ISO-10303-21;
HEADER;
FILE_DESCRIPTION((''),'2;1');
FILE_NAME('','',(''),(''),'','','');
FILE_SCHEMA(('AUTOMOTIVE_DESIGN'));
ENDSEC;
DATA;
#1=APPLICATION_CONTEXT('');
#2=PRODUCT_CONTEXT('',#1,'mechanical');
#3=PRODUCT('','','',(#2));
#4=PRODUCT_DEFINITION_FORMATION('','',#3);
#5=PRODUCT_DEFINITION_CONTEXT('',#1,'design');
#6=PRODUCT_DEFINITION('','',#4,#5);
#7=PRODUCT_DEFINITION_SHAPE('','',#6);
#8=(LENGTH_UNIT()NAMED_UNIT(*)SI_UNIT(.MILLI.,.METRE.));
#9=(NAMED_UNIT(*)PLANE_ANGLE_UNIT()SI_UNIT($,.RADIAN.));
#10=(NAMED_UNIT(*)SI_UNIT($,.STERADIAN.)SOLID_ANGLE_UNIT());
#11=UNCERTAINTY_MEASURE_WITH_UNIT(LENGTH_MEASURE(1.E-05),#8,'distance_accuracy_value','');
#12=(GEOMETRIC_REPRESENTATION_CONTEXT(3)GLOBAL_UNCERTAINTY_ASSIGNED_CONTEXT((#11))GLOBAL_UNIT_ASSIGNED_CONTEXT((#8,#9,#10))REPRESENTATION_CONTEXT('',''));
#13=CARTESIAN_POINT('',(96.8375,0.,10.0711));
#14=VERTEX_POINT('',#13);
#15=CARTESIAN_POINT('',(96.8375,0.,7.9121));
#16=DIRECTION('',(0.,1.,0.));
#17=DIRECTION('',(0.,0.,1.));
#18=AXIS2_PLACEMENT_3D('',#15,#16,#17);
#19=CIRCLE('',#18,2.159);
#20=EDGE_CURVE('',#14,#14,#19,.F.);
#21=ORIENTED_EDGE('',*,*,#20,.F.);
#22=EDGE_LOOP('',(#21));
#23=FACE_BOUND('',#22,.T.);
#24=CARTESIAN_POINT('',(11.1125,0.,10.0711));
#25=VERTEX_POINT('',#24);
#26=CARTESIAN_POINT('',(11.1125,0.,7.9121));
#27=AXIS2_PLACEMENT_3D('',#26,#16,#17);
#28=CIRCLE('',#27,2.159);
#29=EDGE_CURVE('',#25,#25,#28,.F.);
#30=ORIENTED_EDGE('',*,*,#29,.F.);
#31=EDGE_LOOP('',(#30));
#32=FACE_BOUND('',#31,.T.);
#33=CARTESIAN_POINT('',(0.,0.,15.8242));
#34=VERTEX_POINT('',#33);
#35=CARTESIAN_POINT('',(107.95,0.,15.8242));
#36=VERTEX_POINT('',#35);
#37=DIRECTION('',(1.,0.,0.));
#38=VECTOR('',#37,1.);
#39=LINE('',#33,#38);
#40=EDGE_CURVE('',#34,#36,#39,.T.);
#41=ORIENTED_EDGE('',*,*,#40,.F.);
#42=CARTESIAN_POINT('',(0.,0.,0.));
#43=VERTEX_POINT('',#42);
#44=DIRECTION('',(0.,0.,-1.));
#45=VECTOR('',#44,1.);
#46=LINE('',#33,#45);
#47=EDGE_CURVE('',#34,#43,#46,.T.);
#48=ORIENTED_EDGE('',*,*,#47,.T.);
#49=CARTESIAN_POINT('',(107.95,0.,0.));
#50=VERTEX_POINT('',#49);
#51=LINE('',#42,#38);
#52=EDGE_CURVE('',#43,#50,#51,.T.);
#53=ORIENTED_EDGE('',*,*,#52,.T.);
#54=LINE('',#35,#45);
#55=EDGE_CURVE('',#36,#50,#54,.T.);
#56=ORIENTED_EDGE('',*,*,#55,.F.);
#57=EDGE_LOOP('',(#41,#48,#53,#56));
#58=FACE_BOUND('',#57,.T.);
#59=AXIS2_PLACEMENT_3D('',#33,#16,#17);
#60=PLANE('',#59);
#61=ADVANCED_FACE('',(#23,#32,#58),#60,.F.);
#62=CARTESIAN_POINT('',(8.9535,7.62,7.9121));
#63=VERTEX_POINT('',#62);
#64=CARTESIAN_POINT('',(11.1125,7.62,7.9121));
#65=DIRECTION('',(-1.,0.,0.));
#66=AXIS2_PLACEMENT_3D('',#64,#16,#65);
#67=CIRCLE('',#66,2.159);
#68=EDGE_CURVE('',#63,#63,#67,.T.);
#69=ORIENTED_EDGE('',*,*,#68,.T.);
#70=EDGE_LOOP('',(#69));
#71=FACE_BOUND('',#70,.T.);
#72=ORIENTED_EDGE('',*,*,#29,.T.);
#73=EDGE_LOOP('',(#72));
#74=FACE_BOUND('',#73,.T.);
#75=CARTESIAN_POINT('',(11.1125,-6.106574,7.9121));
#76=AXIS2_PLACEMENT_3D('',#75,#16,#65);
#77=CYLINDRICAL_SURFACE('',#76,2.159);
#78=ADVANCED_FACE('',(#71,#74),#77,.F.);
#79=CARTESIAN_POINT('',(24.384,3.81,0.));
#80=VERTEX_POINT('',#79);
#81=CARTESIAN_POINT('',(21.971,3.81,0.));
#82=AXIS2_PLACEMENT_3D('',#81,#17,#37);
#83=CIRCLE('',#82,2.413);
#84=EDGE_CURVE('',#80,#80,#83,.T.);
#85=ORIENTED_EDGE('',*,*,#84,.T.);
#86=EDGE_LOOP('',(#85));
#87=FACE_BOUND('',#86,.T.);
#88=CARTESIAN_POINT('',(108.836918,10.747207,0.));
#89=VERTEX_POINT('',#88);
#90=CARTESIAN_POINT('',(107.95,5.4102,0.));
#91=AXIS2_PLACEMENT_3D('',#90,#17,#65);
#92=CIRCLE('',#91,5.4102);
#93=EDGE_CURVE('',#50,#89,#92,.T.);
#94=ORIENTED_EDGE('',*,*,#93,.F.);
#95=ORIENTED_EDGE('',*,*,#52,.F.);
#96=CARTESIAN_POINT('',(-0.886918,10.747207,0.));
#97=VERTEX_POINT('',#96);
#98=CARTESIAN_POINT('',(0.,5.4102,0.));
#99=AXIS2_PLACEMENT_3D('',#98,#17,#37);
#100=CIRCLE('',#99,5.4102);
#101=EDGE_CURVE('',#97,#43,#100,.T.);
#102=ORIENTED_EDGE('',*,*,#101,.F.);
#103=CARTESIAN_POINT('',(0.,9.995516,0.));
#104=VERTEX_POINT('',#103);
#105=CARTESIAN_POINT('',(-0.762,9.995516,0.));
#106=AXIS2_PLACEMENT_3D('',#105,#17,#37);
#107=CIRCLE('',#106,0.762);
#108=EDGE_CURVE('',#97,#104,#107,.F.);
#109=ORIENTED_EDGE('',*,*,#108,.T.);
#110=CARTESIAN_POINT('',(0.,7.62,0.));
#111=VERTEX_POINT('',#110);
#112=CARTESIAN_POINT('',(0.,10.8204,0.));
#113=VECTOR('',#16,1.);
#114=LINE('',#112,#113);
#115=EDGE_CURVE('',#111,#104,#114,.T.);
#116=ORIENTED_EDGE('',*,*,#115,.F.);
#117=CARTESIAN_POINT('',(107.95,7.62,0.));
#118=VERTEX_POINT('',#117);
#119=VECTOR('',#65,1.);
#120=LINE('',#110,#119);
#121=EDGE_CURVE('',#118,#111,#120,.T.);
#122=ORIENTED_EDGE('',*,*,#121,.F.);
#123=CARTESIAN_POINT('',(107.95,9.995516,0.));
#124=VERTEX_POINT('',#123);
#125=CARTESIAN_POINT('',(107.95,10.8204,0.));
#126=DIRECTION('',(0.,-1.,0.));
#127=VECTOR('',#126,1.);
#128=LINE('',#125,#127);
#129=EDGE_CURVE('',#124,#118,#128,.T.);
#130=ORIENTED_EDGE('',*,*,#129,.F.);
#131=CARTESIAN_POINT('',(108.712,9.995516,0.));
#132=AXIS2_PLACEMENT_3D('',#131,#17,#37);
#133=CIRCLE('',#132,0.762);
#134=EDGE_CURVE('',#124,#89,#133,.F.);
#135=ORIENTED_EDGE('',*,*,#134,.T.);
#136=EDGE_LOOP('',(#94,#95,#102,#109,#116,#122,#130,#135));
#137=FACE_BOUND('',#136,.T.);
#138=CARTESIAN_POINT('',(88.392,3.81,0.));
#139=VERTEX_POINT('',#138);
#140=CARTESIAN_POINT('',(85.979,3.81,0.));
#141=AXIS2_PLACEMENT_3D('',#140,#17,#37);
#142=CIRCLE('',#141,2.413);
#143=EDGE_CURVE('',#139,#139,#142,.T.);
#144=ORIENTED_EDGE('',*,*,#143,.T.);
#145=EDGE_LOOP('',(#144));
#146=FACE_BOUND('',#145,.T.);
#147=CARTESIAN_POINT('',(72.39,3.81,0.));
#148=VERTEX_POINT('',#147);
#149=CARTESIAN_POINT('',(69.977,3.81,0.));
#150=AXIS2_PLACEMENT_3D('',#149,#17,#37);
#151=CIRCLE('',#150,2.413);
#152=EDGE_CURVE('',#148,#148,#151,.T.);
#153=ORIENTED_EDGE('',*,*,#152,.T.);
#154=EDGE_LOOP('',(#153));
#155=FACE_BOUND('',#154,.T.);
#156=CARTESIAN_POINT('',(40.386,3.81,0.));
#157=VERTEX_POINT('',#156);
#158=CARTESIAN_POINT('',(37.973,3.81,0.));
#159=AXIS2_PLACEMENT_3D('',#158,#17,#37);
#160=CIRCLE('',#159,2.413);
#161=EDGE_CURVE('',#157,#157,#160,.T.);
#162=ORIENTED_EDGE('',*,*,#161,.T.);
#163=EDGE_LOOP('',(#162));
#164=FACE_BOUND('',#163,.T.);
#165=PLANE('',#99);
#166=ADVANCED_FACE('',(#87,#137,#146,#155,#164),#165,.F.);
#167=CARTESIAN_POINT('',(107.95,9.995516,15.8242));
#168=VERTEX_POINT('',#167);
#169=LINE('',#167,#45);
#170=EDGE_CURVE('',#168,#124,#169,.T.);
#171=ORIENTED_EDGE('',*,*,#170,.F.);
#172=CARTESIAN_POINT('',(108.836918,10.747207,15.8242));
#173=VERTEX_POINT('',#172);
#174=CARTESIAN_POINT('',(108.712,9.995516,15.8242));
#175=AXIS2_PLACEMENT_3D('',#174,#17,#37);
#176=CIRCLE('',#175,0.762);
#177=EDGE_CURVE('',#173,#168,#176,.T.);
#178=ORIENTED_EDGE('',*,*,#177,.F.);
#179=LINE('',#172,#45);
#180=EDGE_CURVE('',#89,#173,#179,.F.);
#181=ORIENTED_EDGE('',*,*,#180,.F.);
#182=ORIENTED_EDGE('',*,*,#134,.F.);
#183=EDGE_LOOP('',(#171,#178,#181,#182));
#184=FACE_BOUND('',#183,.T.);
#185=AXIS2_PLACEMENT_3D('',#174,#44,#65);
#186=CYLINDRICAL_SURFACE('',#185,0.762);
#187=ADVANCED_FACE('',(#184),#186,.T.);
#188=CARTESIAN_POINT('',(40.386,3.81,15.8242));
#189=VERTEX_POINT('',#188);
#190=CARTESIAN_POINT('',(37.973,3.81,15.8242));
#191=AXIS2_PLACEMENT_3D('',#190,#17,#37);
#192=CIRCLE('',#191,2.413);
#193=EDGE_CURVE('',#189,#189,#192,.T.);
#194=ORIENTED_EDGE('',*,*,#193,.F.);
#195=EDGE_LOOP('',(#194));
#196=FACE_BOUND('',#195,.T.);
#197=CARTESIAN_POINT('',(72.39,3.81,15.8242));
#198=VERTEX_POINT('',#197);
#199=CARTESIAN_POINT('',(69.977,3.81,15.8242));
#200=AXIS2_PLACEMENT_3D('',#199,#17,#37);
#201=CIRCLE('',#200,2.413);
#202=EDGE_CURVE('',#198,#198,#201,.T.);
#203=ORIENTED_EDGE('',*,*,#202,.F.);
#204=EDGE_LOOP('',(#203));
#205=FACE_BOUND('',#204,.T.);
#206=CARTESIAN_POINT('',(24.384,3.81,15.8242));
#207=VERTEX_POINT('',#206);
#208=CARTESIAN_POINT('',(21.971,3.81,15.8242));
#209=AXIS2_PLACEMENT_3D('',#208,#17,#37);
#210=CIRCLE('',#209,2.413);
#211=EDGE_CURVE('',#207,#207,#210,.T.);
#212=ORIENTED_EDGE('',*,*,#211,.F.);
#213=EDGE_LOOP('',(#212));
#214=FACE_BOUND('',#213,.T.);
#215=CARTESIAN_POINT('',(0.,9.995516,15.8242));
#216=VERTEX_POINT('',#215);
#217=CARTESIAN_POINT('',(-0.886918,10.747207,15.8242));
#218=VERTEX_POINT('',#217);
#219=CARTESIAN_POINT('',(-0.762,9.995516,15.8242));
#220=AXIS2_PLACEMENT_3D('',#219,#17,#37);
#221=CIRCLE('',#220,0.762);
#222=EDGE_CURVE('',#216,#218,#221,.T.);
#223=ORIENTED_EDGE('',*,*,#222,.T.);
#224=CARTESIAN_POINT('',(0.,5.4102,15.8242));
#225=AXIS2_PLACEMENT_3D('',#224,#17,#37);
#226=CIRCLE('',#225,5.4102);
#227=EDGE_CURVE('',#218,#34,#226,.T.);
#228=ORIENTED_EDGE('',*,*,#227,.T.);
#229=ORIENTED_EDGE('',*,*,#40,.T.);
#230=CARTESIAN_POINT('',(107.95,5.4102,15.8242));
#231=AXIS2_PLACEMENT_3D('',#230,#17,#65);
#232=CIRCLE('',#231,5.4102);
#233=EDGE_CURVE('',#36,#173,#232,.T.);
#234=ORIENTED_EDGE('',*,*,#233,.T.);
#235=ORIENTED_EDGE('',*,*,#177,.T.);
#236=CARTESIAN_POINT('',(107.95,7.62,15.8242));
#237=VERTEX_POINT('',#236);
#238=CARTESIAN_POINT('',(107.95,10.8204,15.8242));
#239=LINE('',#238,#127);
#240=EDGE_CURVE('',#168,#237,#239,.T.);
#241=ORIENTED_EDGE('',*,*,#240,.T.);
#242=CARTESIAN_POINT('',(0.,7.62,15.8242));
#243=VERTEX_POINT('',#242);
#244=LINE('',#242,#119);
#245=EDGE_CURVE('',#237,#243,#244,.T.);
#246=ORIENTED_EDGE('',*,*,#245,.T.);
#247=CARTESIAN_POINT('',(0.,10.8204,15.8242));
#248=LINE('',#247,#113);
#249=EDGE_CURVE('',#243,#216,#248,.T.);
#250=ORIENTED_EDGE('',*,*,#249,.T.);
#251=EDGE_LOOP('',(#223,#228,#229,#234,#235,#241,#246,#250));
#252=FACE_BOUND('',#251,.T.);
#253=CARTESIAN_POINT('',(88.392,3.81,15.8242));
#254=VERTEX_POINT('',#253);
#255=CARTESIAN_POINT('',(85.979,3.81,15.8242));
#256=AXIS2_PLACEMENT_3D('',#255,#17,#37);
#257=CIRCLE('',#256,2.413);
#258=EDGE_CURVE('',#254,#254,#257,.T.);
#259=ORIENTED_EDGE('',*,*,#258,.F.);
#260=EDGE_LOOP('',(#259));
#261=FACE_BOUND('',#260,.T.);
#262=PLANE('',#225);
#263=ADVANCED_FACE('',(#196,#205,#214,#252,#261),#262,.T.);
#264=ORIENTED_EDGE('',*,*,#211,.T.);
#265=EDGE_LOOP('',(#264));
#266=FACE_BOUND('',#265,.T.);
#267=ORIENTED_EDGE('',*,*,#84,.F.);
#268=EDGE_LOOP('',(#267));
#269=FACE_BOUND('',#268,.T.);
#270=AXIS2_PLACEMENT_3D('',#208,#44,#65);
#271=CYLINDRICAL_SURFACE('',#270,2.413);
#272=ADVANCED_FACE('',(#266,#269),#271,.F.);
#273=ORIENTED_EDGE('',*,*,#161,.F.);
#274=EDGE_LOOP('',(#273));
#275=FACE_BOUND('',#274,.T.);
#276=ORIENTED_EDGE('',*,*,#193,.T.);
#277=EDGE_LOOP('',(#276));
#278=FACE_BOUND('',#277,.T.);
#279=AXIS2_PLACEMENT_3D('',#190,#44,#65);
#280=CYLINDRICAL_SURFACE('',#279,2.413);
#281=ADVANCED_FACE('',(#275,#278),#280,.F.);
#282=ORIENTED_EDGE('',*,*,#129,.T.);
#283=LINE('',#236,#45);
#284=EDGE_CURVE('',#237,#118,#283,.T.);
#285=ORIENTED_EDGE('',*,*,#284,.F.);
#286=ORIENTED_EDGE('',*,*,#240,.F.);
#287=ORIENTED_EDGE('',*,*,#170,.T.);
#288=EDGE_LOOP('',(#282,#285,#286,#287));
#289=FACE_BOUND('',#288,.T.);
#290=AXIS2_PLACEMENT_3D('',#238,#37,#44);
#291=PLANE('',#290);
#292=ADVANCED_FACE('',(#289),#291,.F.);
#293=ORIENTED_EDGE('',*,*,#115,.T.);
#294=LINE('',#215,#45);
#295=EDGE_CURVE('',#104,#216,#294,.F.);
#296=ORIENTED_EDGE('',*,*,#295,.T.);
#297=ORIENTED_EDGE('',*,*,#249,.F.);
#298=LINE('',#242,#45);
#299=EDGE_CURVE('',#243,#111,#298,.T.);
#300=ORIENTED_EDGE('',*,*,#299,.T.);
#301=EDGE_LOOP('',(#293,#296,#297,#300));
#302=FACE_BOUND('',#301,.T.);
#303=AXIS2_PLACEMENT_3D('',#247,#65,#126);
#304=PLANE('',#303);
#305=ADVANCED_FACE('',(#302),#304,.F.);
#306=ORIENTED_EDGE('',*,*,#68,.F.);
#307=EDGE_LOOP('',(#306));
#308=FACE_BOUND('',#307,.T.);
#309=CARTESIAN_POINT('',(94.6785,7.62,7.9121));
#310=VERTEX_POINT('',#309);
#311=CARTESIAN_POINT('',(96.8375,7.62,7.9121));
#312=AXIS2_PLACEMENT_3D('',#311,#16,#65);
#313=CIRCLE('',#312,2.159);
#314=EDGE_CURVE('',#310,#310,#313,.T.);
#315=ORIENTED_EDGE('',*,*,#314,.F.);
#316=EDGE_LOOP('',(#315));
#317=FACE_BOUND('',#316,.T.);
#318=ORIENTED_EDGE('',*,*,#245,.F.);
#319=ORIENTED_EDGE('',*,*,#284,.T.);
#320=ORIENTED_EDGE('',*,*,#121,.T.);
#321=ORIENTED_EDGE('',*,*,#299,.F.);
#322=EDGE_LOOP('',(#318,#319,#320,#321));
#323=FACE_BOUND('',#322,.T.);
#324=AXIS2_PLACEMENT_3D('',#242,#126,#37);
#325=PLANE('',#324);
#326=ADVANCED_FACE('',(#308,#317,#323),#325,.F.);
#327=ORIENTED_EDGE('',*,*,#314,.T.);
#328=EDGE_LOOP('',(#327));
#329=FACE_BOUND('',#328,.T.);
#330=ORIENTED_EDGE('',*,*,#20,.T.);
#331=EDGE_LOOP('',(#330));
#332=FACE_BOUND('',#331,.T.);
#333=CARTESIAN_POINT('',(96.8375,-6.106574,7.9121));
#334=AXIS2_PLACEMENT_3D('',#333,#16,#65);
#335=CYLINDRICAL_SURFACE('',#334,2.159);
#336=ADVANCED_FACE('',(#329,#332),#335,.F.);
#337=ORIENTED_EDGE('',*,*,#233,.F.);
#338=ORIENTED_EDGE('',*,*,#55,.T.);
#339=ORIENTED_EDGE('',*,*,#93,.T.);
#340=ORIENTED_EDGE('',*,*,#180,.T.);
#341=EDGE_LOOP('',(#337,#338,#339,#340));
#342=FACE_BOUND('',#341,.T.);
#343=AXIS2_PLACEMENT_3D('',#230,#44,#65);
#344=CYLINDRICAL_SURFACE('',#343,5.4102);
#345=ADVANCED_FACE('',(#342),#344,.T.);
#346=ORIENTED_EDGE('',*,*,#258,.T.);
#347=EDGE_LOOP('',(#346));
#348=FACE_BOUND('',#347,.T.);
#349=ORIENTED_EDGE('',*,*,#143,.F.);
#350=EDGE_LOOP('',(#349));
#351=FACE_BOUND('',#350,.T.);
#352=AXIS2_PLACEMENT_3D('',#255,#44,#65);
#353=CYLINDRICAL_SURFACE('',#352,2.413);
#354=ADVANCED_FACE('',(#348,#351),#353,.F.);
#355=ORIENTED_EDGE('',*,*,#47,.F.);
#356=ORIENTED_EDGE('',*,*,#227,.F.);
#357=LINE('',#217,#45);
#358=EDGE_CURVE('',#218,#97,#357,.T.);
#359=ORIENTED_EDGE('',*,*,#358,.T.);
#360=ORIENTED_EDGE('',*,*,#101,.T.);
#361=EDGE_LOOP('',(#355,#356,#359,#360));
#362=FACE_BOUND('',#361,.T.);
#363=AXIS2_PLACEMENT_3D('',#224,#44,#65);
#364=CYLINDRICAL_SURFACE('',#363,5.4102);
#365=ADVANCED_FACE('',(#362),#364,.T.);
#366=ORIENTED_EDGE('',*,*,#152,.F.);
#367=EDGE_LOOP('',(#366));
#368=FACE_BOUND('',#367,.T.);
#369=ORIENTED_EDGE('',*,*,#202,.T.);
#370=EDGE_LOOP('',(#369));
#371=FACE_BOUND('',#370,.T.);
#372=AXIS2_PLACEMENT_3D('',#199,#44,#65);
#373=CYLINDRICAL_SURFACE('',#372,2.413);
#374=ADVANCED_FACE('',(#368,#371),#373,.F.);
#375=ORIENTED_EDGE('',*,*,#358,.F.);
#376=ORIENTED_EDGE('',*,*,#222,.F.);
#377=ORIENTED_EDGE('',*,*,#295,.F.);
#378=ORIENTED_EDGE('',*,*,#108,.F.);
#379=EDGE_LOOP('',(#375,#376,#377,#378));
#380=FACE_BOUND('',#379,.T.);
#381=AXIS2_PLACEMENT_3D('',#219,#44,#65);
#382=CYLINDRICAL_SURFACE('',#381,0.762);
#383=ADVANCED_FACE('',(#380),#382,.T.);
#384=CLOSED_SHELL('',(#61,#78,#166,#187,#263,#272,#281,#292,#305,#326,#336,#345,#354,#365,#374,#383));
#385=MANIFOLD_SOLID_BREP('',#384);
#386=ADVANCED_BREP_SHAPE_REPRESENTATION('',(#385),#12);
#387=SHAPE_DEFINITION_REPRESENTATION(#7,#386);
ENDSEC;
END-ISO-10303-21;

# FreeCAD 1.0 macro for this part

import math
import FreeCAD as App
import Part
import Sketcher

V = App.Vector
Q = App.Units.Quantity


def edges_at(feature, points):
    """Names of the edges that pass closest to the given points."""
    edges = feature.Shape.Edges
    near = lambda p: min(range(len(edges)), key=lambda i: edges[i].distToShape(Part.Vertex(*p))[0])
    return sorted({f"Edge{near(p) + 1}" for p in points})

doc = App.newDocument("Part")
body = doc.addObject("PartDesign::Body", "Body")

# Sketch on XY plane
sketch1 = body.newObject("Sketcher::SketchObject", "Sketch")
sketch1.AttachmentSupport = (doc.getObject("XY_Plane"), [""])
sketch1.MapMode = "FlatFace"
sketch1.addGeometry([
    Part.LineSegment(V(108, 7.6, 0), V(0, 7.6, 0)),  # 0
    Part.LineSegment(V(0, 7.6, 0), V(0, 10.8, 0)),  # 1
    Part.ArcOfCircle(Part.Circle(V(0, 5.4, 0), V(0, 0, 1), 5.4), math.radians(90), math.radians(270)),  # 2
    Part.LineSegment(V(0, 0, 0), V(108, 0, 0)),  # 3
    Part.ArcOfCircle(Part.Circle(V(108, 5.4, 0), V(0, 0, 1), 5.4), math.radians(-90), math.radians(90)),  # 4
    Part.LineSegment(V(108, 10.8, 0), V(108, 7.6, 0)),  # 5
    Part.Circle(V(86, 3.8, 0), V(0, 0, 1), 2.4),  # 6
    Part.Circle(V(70, 3.8, 0), V(0, 0, 1), 2.4),  # 7
    Part.Circle(V(38, 3.8, 0), V(0, 0, 1), 2.4),  # 8
    Part.Circle(V(22, 3.8, 0), V(0, 0, 1), 2.4),  # 9
], False)
sketch1.addConstraint([
    Sketcher.Constraint("Coincident", 0, 2, 1, 1),
    Sketcher.Constraint("Coincident", 1, 2, 2, 1),
    Sketcher.Constraint("Tangent", 2, 2, 3, 1),
    Sketcher.Constraint("Tangent", 3, 2, 4, 1),
    Sketcher.Constraint("Coincident", 4, 2, 5, 1),
    Sketcher.Constraint("Coincident", 5, 2, 0, 1),
    Sketcher.Constraint("Horizontal", 0),
    Sketcher.Constraint("Vertical", 1),
    Sketcher.Constraint("Horizontal", 3),
    Sketcher.Constraint("Vertical", 5),
    Sketcher.Constraint("Coincident", 2, 2, -1, 1),
    Sketcher.Constraint("Equal", 2, 4),
    Sketcher.Constraint("Equal", 6, 7),
    Sketcher.Constraint("Equal", 7, 8),
    Sketcher.Constraint("Equal", 8, 9),
    Sketcher.Constraint("PointOnObject", 0, 2, -2),
    Sketcher.Constraint("Horizontal", 6, 3, 7, 3),
    Sketcher.Constraint("Horizontal", 7, 3, 8, 3),
    Sketcher.Constraint("Horizontal", 8, 3, 9, 3),
    Sketcher.Constraint("Vertical", 3, 2, 4, 2),
    Sketcher.Constraint("Diameter", 6, Q("0.19 in")),
    Sketcher.Constraint("Radius", 2, Q("0.213 in")),
    Sketcher.Constraint("DistanceX", 0, 2, 0, 1, Q("4.25 in")),
    Sketcher.Constraint("DistanceY", -1, 1, 0, 2, Q("0.3 in")),
    Sketcher.Constraint("DistanceY", -1, 1, 6, 3, Q("0.15 in")),
    Sketcher.Constraint("DistanceX", 7, 3, 6, 3, Q("0.63 in")),
    Sketcher.Constraint("DistanceX", 8, 3, 7, 3, Q("1.26 in")),
    Sketcher.Constraint("DistanceX", 9, 3, 8, 3, Q("0.63 in")),
    Sketcher.Constraint("DistanceX", -1, 1, 6, 3, Q("3.385 in")),
])
pad1 = body.newObject("PartDesign::Pad", "Pad")
pad1.Profile = sketch1
pad1.Length = Q("0.623 in")

# Sketch on XZ plane
sketch2 = body.newObject("Sketcher::SketchObject", "Sketch001")
sketch2.AttachmentSupport = (doc.getObject("XZ_Plane"), [""])
sketch2.MapMode = "FlatFace"
sketch2.AttachmentOffset = App.Placement(V(0, 0, -0.3 * 25.4), App.Rotation())
sketch2.addGeometry([
    Part.Circle(V(96.8, 7.9, 0), V(0, 0, 1), 2.2),
    Part.Circle(V(11.1, 7.9, 0), V(0, 0, 1), 2.2),
], False)
sketch2.addConstraint([
    Sketcher.Constraint("Equal", 0, 1),
    Sketcher.Constraint("Horizontal", 0, 3, 1, 3),
    Sketcher.Constraint("Diameter", 0, Q("0.17 in")),
    Sketcher.Constraint("DistanceX", -1, 1, 0, 3, Q("3.8125 in")),
    Sketcher.Constraint("DistanceX", -1, 1, 1, 3, Q("0.4375 in")),
    Sketcher.Constraint("DistanceY", -1, 1, 0, 3, Q("0.3115 in")),
])
pocket1 = body.newObject("PartDesign::Pocket", "Pocket")
pocket1.Profile = sketch2
pocket1.Length = Q("0.3 in")
pocket1.Reversed = True
doc.recompute()

fillet = body.newObject("PartDesign::Fillet", "Fillet")
fillet.Base = (pocket1, edges_at(pocket1, [(0, 10.82, 7.912), (107.95, 10.82, 7.912)]))
fillet.Radius = Q("0.03 in")

doc.recompute()
